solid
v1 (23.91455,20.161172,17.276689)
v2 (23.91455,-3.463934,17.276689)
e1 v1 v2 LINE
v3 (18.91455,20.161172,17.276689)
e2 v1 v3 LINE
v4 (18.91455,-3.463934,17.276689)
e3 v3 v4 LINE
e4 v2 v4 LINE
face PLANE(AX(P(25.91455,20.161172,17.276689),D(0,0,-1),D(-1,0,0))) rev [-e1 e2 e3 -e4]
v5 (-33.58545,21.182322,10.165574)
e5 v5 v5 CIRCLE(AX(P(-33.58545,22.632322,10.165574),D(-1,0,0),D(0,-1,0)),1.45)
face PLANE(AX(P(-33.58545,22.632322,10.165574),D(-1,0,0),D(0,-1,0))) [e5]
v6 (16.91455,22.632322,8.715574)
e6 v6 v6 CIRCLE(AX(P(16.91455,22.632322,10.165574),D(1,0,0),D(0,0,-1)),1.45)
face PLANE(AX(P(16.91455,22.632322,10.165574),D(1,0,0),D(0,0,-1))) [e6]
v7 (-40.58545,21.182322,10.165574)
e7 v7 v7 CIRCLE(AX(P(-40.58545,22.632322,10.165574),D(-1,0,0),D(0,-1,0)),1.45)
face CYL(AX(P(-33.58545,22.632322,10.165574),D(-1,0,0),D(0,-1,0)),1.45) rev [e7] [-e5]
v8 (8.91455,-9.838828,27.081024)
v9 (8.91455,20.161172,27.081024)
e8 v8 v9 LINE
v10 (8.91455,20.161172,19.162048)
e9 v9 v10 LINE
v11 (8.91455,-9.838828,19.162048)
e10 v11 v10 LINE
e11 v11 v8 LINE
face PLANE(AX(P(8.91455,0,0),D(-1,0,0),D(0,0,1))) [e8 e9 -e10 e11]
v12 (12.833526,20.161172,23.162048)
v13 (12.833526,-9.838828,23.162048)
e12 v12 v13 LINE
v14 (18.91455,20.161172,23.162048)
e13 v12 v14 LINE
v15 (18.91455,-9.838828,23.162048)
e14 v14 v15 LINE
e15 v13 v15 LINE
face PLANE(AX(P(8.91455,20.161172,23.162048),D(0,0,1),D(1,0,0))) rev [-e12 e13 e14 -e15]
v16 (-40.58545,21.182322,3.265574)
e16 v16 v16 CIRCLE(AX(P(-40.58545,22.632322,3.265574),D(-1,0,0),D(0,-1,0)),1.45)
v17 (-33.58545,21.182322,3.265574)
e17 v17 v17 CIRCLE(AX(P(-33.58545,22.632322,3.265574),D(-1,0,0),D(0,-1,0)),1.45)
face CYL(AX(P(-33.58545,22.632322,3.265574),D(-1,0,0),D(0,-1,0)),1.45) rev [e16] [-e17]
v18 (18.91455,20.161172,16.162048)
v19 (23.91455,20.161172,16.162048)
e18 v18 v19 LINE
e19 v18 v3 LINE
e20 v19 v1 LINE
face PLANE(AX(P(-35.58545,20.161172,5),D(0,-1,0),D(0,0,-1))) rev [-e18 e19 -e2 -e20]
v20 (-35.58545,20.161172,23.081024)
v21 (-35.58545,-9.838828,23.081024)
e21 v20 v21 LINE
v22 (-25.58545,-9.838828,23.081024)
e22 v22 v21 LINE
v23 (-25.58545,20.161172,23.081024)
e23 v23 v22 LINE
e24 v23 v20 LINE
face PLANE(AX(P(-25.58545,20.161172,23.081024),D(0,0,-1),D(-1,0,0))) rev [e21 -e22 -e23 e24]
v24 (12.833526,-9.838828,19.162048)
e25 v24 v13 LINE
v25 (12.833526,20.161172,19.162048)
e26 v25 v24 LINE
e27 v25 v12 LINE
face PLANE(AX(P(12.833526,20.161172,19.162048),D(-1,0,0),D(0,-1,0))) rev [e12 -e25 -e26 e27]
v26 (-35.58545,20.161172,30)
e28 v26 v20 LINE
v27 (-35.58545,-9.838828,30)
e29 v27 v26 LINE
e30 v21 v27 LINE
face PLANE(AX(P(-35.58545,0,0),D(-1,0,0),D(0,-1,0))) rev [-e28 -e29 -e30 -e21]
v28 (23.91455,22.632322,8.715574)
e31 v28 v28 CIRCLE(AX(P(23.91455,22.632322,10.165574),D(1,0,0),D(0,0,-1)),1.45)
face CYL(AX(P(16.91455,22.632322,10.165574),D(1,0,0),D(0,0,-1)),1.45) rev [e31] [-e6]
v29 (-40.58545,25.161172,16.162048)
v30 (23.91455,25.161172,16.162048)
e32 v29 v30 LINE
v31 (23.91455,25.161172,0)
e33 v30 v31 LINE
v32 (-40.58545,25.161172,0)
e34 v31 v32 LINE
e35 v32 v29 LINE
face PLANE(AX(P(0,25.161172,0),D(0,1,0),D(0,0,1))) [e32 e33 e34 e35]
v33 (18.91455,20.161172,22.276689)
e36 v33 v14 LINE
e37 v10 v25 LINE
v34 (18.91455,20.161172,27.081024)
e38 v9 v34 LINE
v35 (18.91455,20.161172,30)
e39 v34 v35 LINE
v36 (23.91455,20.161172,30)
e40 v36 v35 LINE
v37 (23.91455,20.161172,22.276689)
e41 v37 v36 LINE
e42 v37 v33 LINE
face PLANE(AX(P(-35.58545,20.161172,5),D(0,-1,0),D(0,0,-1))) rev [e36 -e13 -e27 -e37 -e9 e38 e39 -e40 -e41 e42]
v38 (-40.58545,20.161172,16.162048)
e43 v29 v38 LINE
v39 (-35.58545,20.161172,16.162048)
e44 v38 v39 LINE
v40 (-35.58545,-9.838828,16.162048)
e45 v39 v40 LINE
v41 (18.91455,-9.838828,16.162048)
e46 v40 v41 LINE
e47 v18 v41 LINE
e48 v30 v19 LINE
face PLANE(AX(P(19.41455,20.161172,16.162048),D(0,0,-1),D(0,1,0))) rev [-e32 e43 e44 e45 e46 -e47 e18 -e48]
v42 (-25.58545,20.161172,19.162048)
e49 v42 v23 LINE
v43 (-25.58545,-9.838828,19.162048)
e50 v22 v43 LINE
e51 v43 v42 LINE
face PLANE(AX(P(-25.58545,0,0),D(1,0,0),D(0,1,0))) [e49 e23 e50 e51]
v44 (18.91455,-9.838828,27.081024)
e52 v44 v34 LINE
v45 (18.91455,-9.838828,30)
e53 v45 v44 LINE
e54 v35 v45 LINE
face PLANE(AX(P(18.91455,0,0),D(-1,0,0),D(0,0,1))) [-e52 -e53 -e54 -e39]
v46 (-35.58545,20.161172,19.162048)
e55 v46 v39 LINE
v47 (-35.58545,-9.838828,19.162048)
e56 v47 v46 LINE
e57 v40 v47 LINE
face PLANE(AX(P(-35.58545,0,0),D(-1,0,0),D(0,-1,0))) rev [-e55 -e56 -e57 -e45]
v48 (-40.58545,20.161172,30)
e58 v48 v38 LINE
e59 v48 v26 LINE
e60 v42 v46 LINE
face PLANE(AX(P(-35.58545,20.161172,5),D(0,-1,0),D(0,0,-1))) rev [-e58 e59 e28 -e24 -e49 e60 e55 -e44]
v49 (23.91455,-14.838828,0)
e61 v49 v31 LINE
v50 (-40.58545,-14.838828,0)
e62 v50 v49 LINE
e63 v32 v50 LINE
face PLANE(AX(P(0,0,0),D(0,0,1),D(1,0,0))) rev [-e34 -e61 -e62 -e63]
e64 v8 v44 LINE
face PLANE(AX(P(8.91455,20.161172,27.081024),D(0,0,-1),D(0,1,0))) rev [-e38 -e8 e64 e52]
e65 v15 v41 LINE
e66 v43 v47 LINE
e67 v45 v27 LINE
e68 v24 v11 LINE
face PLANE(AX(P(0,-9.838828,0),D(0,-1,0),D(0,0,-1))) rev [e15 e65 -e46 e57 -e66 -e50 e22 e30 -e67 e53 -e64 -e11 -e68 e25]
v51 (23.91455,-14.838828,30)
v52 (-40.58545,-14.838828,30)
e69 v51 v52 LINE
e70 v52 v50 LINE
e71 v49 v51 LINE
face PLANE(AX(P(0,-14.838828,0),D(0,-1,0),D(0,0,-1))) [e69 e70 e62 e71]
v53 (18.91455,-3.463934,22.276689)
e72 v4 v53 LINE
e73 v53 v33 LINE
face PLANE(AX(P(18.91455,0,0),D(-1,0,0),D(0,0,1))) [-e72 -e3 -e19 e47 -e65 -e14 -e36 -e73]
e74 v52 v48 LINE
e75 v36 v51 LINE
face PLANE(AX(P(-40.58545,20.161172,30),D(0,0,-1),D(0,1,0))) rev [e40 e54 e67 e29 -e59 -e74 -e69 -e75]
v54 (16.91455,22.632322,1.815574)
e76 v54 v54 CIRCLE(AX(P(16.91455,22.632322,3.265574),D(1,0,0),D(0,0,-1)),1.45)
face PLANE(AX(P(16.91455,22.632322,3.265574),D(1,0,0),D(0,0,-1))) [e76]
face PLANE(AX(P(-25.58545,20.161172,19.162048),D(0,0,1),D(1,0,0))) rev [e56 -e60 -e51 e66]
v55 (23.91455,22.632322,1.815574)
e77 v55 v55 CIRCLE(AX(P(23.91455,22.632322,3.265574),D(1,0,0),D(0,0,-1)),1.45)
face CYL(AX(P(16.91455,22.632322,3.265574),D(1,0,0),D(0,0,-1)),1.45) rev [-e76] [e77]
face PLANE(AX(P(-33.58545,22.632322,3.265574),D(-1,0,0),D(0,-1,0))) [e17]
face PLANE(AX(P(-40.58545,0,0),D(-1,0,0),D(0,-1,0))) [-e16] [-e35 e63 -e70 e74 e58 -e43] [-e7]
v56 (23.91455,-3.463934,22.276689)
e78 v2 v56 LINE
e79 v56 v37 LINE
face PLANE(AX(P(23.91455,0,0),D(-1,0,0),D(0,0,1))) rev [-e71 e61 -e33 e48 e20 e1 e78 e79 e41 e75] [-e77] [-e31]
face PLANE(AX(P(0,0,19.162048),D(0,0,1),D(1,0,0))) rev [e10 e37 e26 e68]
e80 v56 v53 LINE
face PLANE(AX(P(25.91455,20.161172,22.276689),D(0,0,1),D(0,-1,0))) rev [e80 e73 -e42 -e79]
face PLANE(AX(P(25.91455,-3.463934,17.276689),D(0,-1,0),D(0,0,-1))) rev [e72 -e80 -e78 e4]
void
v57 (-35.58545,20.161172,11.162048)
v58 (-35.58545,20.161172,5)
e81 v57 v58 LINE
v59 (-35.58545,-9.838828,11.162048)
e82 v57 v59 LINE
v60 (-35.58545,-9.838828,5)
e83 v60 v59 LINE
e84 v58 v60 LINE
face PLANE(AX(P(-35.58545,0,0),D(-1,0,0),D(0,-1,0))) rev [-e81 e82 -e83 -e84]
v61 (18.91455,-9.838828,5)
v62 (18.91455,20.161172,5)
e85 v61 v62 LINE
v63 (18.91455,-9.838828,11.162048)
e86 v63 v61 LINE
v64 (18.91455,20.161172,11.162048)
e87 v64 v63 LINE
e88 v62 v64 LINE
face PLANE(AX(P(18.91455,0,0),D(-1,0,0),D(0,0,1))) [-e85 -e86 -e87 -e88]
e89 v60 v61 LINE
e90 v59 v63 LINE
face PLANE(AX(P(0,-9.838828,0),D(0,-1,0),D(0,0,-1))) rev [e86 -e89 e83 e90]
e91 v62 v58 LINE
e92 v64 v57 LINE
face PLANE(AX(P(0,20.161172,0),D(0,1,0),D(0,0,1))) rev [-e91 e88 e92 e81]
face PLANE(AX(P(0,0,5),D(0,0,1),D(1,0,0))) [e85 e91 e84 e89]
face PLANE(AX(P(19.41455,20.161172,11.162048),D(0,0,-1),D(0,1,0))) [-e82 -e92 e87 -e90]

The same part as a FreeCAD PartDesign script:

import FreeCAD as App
import Part
import Sketcher

doc = App.newDocument("Part")
body = doc.addObject("PartDesign::Body", "Body")

sketch1 = body.newObject("Sketcher::SketchObject", "Sketch")
sketch1.AttachmentSupport = (doc.getObject("XY_Plane"), [""])
sketch1.MapMode = "FlatFace"
sketch1.addGeometry([
    Part.LineSegment(App.Vector(-36, 20, 0), App.Vector(-36, -10, 0)),
    Part.LineSegment(App.Vector(-36, -10, 0), App.Vector(19, -10, 0)),
    Part.LineSegment(App.Vector(19, -10, 0), App.Vector(19, 20, 0)),
    Part.LineSegment(App.Vector(19, 20, 0), App.Vector(-36, 20, 0)),
], False)
sketch1.addConstraint([
    Sketcher.Constraint("Coincident", 0, 2, 1, 1),
    Sketcher.Constraint("Coincident", 1, 2, 2, 1),
    Sketcher.Constraint("Coincident", 2, 2, 3, 1),
    Sketcher.Constraint("Coincident", 3, 2, 0, 1),
    Sketcher.Constraint("Vertical", 0),
    Sketcher.Constraint("Horizontal", 1),
    Sketcher.Constraint("Vertical", 2),
    Sketcher.Constraint("Horizontal", 3),
    Sketcher.Constraint("DistanceY", 0, 2, 0, 1, 30.0),
    Sketcher.Constraint("DistanceX", 1, 1, 1, 2, 54.5),
    Sketcher.Constraint("DistanceX", 0, 2, -1, 1, 35.58545),
    Sketcher.Constraint("DistanceY", 0, 2, -1, 1, 9.838828),
])
pad1 = body.newObject("PartDesign::Pad", "Pad")
pad1.Profile = sketch1
pad1.Length = 5

sketch2 = body.newObject("Sketcher::SketchObject", "Sketch001")
sketch2.AttachmentSupport = (doc.getObject("YZ_Plane"), [""])
sketch2.MapMode = "FlatFace"
sketch2.AttachmentOffset = App.Placement(App.Vector(0, 0, -35.58545), App.Rotation())
sketch2.addGeometry([
    Part.LineSegment(App.Vector(20, 0, 0), App.Vector(-10, 0, 0)),
    Part.LineSegment(App.Vector(-10, 0, 0), App.Vector(-10, 30, 0)),
    Part.LineSegment(App.Vector(-10, 30, 0), App.Vector(20, 30, 0)),
    Part.LineSegment(App.Vector(20, 30, 0), App.Vector(20, 0, 0)),
], False)
sketch2.addConstraint([
    Sketcher.Constraint("Coincident", 0, 2, 1, 1),
    Sketcher.Constraint("Coincident", 1, 2, 2, 1),
    Sketcher.Constraint("Coincident", 2, 2, 3, 1),
    Sketcher.Constraint("Coincident", 3, 2, 0, 1),
    Sketcher.Constraint("Horizontal", 0),
    Sketcher.Constraint("Vertical", 1),
    Sketcher.Constraint("Horizontal", 2),
    Sketcher.Constraint("Vertical", 3),
    Sketcher.Constraint("PointOnObject", 0, 2, -1),
    Sketcher.Constraint("Equal", 2, 1),
    Sketcher.Constraint("DistanceX", 0, 2, 0, 1, 30.0),
    Sketcher.Constraint("DistanceX", 0, 2, -1, 1, 9.838828),
])
pad2 = body.newObject("PartDesign::Pad", "Pad001")
pad2.Profile = sketch2
pad2.Length = 5
pad2.Reversed = True

sketch3 = body.newObject("Sketcher::SketchObject", "Sketch002")
sketch3.AttachmentSupport = (doc.getObject("YZ_Plane"), [""])
sketch3.MapMode = "FlatFace"
sketch3.AttachmentOffset = App.Placement(App.Vector(0, 0, 18.91455), App.Rotation())
sketch3.addGeometry([
    Part.LineSegment(App.Vector(20, 30, 0), App.Vector(-10, 30, 0)),
    Part.LineSegment(App.Vector(-10, 30, 0), App.Vector(-10, 0, 0)),
    Part.LineSegment(App.Vector(-10, 0, 0), App.Vector(20, 0, 0)),
    Part.LineSegment(App.Vector(20, 0, 0), App.Vector(20, 30, 0)),
], False)
sketch3.addConstraint([
    Sketcher.Constraint("Coincident", 0, 2, 1, 1),
    Sketcher.Constraint("Coincident", 1, 2, 2, 1),
    Sketcher.Constraint("Coincident", 2, 2, 3, 1),
    Sketcher.Constraint("Coincident", 3, 2, 0, 1),
    Sketcher.Constraint("Horizontal", 0),
    Sketcher.Constraint("Vertical", 1),
    Sketcher.Constraint("Horizontal", 2),
    Sketcher.Constraint("Vertical", 3),
    Sketcher.Constraint("PointOnObject", 1, 2, -1),
    Sketcher.Constraint("Equal", 2, 1),
    Sketcher.Constraint("DistanceX", 0, 2, 0, 1, 30.0),
    Sketcher.Constraint("DistanceX", 0, 2, -1, 1, 9.838828),
])
pad3 = body.newObject("PartDesign::Pad", "Pad002")
pad3.Profile = sketch3
pad3.Length = 5

sketch4 = body.newObject("Sketcher::SketchObject", "Sketch003")
sketch4.AttachmentSupport = (doc.getObject("XZ_Plane"), [""])
sketch4.MapMode = "FlatFace"
sketch4.AttachmentOffset = App.Placement(App.Vector(0, 0, 9.838828), App.Rotation())
sketch4.addGeometry([
    Part.LineSegment(App.Vector(-41, 30, 0), App.Vector(-41, 0, 0)),
    Part.LineSegment(App.Vector(-41, 0, 0), App.Vector(24, 0, 0)),
    Part.LineSegment(App.Vector(24, 0, 0), App.Vector(24, 30, 0)),
    Part.LineSegment(App.Vector(24, 30, 0), App.Vector(-41, 30, 0)),
], False)
sketch4.addConstraint([
    Sketcher.Constraint("Coincident", 0, 2, 1, 1),
    Sketcher.Constraint("Coincident", 1, 2, 2, 1),
    Sketcher.Constraint("Coincident", 2, 2, 3, 1),
    Sketcher.Constraint("Coincident", 3, 2, 0, 1),
    Sketcher.Constraint("Vertical", 0),
    Sketcher.Constraint("Horizontal", 1),
    Sketcher.Constraint("Vertical", 2),
    Sketcher.Constraint("Horizontal", 3),
    Sketcher.Constraint("PointOnObject", 0, 2, -1),
    Sketcher.Constraint("DistanceY", 0, 2, 0, 1, 30.0),
    Sketcher.Constraint("DistanceX", 1, 1, 1, 2, 64.5),
    Sketcher.Constraint("DistanceX", 0, 2, -1, 1, 40.58545),
])
pad4 = body.newObject("PartDesign::Pad", "Pad003")
pad4.Profile = sketch4
pad4.Length = 5

sketch5 = body.newObject("Sketcher::SketchObject", "Sketch004")
sketch5.AttachmentSupport = (doc.getObject("YZ_Plane"), [""])
sketch5.MapMode = "FlatFace"
sketch5.AttachmentOffset = App.Placement(App.Vector(0, 0, -35.58545), App.Rotation())
sketch5.addGeometry([
    Part.LineSegment(App.Vector(20, 16, 0), App.Vector(-10, 16, 0)),
    Part.LineSegment(App.Vector(-10, 16, 0), App.Vector(-10, 11, 0)),
    Part.LineSegment(App.Vector(-10, 11, 0), App.Vector(20, 11, 0)),
    Part.LineSegment(App.Vector(20, 11, 0), App.Vector(20, 16, 0)),
], False)
sketch5.addConstraint([
    Sketcher.Constraint("Coincident", 0, 2, 1, 1),
    Sketcher.Constraint("Coincident", 1, 2, 2, 1),
    Sketcher.Constraint("Coincident", 2, 2, 3, 1),
    Sketcher.Constraint("Coincident", 3, 2, 0, 1),
    Sketcher.Constraint("Horizontal", 0),
    Sketcher.Constraint("Vertical", 1),
    Sketcher.Constraint("Horizontal", 2),
    Sketcher.Constraint("Vertical", 3),
    Sketcher.Constraint("DistanceX", 0, 2, 0, 1, 30.0),
    Sketcher.Constraint("DistanceY", 1, 2, 1, 1, 5.0),
    Sketcher.Constraint("DistanceX", 0, 2, -1, 1, 9.838828),
    Sketcher.Constraint("DistanceY", -1, 1, 0, 2, 16.162048),
])
pad5 = body.newObject("PartDesign::Pad", "Pad004")
pad5.Profile = sketch5
pad5.Length = 55

sketch6 = body.newObject("Sketcher::SketchObject", "Sketch005")
sketch6.AttachmentSupport = (doc.getObject("XZ_Plane"), [""])
sketch6.MapMode = "FlatFace"
sketch6.AttachmentOffset = App.Placement(App.Vector(0, 0, -20.161172), App.Rotation())
sketch6.addGeometry([
    Part.LineSegment(App.Vector(-41, 0, 0), App.Vector(-41, 16, 0)),
    Part.LineSegment(App.Vector(-41, 16, 0), App.Vector(24, 16, 0)),
    Part.LineSegment(App.Vector(24, 16, 0), App.Vector(24, 0, 0)),
    Part.LineSegment(App.Vector(24, 0, 0), App.Vector(-41, 0, 0)),
], False)
sketch6.addConstraint([
    Sketcher.Constraint("Coincident", 0, 2, 1, 1),
    Sketcher.Constraint("Coincident", 1, 2, 2, 1),
    Sketcher.Constraint("Coincident", 2, 2, 3, 1),
    Sketcher.Constraint("Coincident", 3, 2, 0, 1),
    Sketcher.Constraint("Vertical", 0),
    Sketcher.Constraint("Horizontal", 1),
    Sketcher.Constraint("Vertical", 2),
    Sketcher.Constraint("Horizontal", 3),
    Sketcher.Constraint("PointOnObject", 2, 2, -1),
    Sketcher.Constraint("DistanceX", 1, 1, 1, 2, 64.5),
    Sketcher.Constraint("DistanceY", 0, 1, 0, 2, 16.162048),
    Sketcher.Constraint("DistanceX", 0, 2, -1, 1, 40.58545),
])
pad6 = body.newObject("PartDesign::Pad", "Pad005")
pad6.Profile = sketch6
pad6.Length = 5
pad6.Reversed = True

sketch7 = body.newObject("Sketcher::SketchObject", "Sketch006")
sketch7.AttachmentSupport = (doc.getObject("YZ_Plane"), [""])
sketch7.MapMode = "FlatFace"
sketch7.AttachmentOffset = App.Placement(App.Vector(0, 0, -35.58545), App.Rotation())
sketch7.addGeometry([
    Part.LineSegment(App.Vector(20.2, 23.1, 0), App.Vector(-9.8, 23.1, 0)),
    Part.LineSegment(App.Vector(-9.8, 23.1, 0), App.Vector(-9.8, 19.2, 0)),
    Part.LineSegment(App.Vector(-9.8, 19.2, 0), App.Vector(20.2, 19.2, 0)),
    Part.LineSegment(App.Vector(20.2, 19.2, 0), App.Vector(20.2, 23.1, 0)),
], False)
sketch7.addConstraint([
    Sketcher.Constraint("Coincident", 0, 2, 1, 1),
    Sketcher.Constraint("Coincident", 1, 2, 2, 1),
    Sketcher.Constraint("Coincident", 2, 2, 3, 1),
    Sketcher.Constraint("Coincident", 3, 2, 0, 1),
    Sketcher.Constraint("Horizontal", 0),
    Sketcher.Constraint("Vertical", 1),
    Sketcher.Constraint("Horizontal", 2),
    Sketcher.Constraint("Vertical", 3),
    Sketcher.Constraint("DistanceX", 0, 2, 0, 1, 30.0),
    Sketcher.Constraint("DistanceY", 1, 2, 1, 1, 3.918976),
    Sketcher.Constraint("DistanceX", 0, 2, -1, 1, 9.838828),
    Sketcher.Constraint("DistanceY", -1, 1, 0, 2, 23.081024),
])
pad7 = body.newObject("PartDesign::Pad", "Pad006")
pad7.Profile = sketch7
pad7.Length = 10

sketch8 = body.newObject("Sketcher::SketchObject", "Sketch007")
sketch8.AttachmentSupport = (doc.getObject("YZ_Plane"), [""])
sketch8.MapMode = "FlatFace"
sketch8.AttachmentOffset = App.Placement(App.Vector(0, 0, 18.91455), App.Rotation())
sketch8.addGeometry([
    Part.LineSegment(App.Vector(20.2, 23.2, 0), App.Vector(-9.8, 23.2, 0)),
    Part.LineSegment(App.Vector(-9.8, 23.2, 0), App.Vector(-9.8, 27.1, 0)),
    Part.LineSegment(App.Vector(-9.8, 27.1, 0), App.Vector(20.2, 27.1, 0)),
    Part.LineSegment(App.Vector(20.2, 27.1, 0), App.Vector(20.2, 23.2, 0)),
], False)
sketch8.addConstraint([
    Sketcher.Constraint("Coincident", 0, 2, 1, 1),
    Sketcher.Constraint("Coincident", 1, 2, 2, 1),
    Sketcher.Constraint("Coincident", 2, 2, 3, 1),
    Sketcher.Constraint("Coincident", 3, 2, 0, 1),
    Sketcher.Constraint("Horizontal", 0),
    Sketcher.Constraint("Vertical", 1),
    Sketcher.Constraint("Horizontal", 2),
    Sketcher.Constraint("Vertical", 3),
    Sketcher.Constraint("DistanceX", 0, 2, 0, 1, 30.0),
    Sketcher.Constraint("DistanceY", 1, 1, 1, 2, 3.918976),
    Sketcher.Constraint("DistanceX", 0, 2, -1, 1, 9.838828),
    Sketcher.Constraint("DistanceY", -1, 1, 0, 2, 23.162048),
])
pad8 = body.newObject("PartDesign::Pad", "Pad007")
pad8.Profile = sketch8
pad8.Length = 10
pad8.Reversed = True

sketch9 = body.newObject("Sketcher::SketchObject", "Sketch008")
sketch9.AttachmentSupport = (doc.getObject("XY_Plane"), [""])
sketch9.MapMode = "FlatFace"
sketch9.AttachmentOffset = App.Placement(App.Vector(0, 0, 23.162048), App.Rotation())
sketch9.addGeometry([
    Part.LineSegment(App.Vector(12.8, 20.2, 0), App.Vector(12.8, -9.8, 0)),
    Part.LineSegment(App.Vector(12.8, -9.8, 0), App.Vector(8.9, -9.8, 0)),
    Part.LineSegment(App.Vector(8.9, -9.8, 0), App.Vector(8.9, 20.2, 0)),
    Part.LineSegment(App.Vector(8.9, 20.2, 0), App.Vector(12.8, 20.2, 0)),
], False)
sketch9.addConstraint([
    Sketcher.Constraint("Coincident", 0, 2, 1, 1),
    Sketcher.Constraint("Coincident", 1, 2, 2, 1),
    Sketcher.Constraint("Coincident", 2, 2, 3, 1),
    Sketcher.Constraint("Coincident", 3, 2, 0, 1),
    Sketcher.Constraint("Vertical", 0),
    Sketcher.Constraint("Horizontal", 1),
    Sketcher.Constraint("Vertical", 2),
    Sketcher.Constraint("Horizontal", 3),
    Sketcher.Constraint("DistanceY", 0, 2, 0, 1, 30.0),
    Sketcher.Constraint("DistanceX", 1, 2, 1, 1, 3.918976),
    Sketcher.Constraint("DistanceX", -1, 1, 1, 2, 8.91455),
    Sketcher.Constraint("DistanceY", 0, 2, -1, 1, 9.838828),
])
pad9 = body.newObject("PartDesign::Pad", "Pad008")
pad9.Profile = sketch9
pad9.Length = 4
pad9.Reversed = True

sketch10 = body.newObject("Sketcher::SketchObject", "Sketch009")
sketch10.AttachmentSupport = (doc.getObject("YZ_Plane"), [""])
sketch10.MapMode = "FlatFace"
sketch10.AttachmentOffset = App.Placement(App.Vector(0, 0, 18.91455), App.Rotation())
sketch10.addGeometry([
    Part.LineSegment(App.Vector(20, 17, 0), App.Vector(-3, 17, 0)),
    Part.LineSegment(App.Vector(-3, 17, 0), App.Vector(-3, 22, 0)),
    Part.LineSegment(App.Vector(-3, 22, 0), App.Vector(20, 22, 0)),
    Part.LineSegment(App.Vector(20, 22, 0), App.Vector(20, 17, 0)),
], False)
sketch10.addConstraint([
    Sketcher.Constraint("Coincident", 0, 2, 1, 1),
    Sketcher.Constraint("Coincident", 1, 2, 2, 1),
    Sketcher.Constraint("Coincident", 2, 2, 3, 1),
    Sketcher.Constraint("Coincident", 3, 2, 0, 1),
    Sketcher.Constraint("Horizontal", 0),
    Sketcher.Constraint("Vertical", 1),
    Sketcher.Constraint("Horizontal", 2),
    Sketcher.Constraint("Vertical", 3),
    Sketcher.Constraint("DistanceY", 1, 1, 1, 2, 5.0),
    Sketcher.Constraint("DistanceX", 0, 2, 0, 1, 23.625106),
    Sketcher.Constraint("DistanceY", -1, 1, 0, 2, 17.276689),
    Sketcher.Constraint("DistanceX", 0, 2, -1, 1, 3.463934),
])
pocket1 = body.newObject("PartDesign::Pocket", "Pocket")
pocket1.Profile = sketch10
pocket1.Length = 7
pocket1.Reversed = True

sketch11 = body.newObject("Sketcher::SketchObject", "Sketch010")
sketch11.AttachmentSupport = (doc.getObject("YZ_Plane"), [""])
sketch11.MapMode = "FlatFace"
sketch11.AttachmentOffset = App.Placement(App.Vector(0, 0, -40.58545), App.Rotation())
sketch11.addGeometry([
    Part.Circle(App.Vector(22.6, 3.3, 0), App.Vector(0, 0, 1), 1.4),
    Part.Circle(App.Vector(22.6, 10.2, 0), App.Vector(0, 0, 1), 1.4),
], False)
sketch11.addConstraint([
    Sketcher.Constraint("Equal", 0, 1),
    Sketcher.Constraint("Vertical", 0, 3, 1, 3),
    Sketcher.Constraint("Diameter", 0, 2.9),
    Sketcher.Constraint("DistanceY", 0, 3, 1, 3, 6.9),
    Sketcher.Constraint("DistanceX", -1, 1, 0, 3, 22.632322),
    Sketcher.Constraint("DistanceY", -1, 1, 0, 3, 3.265574),
])
pocket2 = body.newObject("PartDesign::Pocket", "Pocket001")
pocket2.Profile = sketch11
pocket2.Length = 7
pocket2.Reversed = True

sketch12 = body.newObject("Sketcher::SketchObject", "Sketch011")
sketch12.AttachmentSupport = (doc.getObject("YZ_Plane"), [""])
sketch12.MapMode = "FlatFace"
sketch12.AttachmentOffset = App.Placement(App.Vector(0, 0, 16.91455), App.Rotation())
sketch12.addGeometry([
    Part.Circle(App.Vector(22.6, 3.3, 0), App.Vector(0, 0, 1), 1.4),
    Part.Circle(App.Vector(22.6, 10.2, 0), App.Vector(0, 0, 1), 1.4),
], False)
sketch12.addConstraint([
    Sketcher.Constraint("Equal", 0, 1),
    Sketcher.Constraint("Vertical", 0, 3, 1, 3),
    Sketcher.Constraint("Diameter", 0, 2.9),
    Sketcher.Constraint("DistanceY", 0, 3, 1, 3, 6.9),
    Sketcher.Constraint("DistanceX", -1, 1, 0, 3, 22.632322),
    Sketcher.Constraint("DistanceY", -1, 1, 0, 3, 3.265574),
])
pocket3 = body.newObject("PartDesign::Pocket", "Pocket002")
pocket3.Profile = sketch12
pocket3.Length = 7
pocket3.Reversed = True

doc.recompute()
